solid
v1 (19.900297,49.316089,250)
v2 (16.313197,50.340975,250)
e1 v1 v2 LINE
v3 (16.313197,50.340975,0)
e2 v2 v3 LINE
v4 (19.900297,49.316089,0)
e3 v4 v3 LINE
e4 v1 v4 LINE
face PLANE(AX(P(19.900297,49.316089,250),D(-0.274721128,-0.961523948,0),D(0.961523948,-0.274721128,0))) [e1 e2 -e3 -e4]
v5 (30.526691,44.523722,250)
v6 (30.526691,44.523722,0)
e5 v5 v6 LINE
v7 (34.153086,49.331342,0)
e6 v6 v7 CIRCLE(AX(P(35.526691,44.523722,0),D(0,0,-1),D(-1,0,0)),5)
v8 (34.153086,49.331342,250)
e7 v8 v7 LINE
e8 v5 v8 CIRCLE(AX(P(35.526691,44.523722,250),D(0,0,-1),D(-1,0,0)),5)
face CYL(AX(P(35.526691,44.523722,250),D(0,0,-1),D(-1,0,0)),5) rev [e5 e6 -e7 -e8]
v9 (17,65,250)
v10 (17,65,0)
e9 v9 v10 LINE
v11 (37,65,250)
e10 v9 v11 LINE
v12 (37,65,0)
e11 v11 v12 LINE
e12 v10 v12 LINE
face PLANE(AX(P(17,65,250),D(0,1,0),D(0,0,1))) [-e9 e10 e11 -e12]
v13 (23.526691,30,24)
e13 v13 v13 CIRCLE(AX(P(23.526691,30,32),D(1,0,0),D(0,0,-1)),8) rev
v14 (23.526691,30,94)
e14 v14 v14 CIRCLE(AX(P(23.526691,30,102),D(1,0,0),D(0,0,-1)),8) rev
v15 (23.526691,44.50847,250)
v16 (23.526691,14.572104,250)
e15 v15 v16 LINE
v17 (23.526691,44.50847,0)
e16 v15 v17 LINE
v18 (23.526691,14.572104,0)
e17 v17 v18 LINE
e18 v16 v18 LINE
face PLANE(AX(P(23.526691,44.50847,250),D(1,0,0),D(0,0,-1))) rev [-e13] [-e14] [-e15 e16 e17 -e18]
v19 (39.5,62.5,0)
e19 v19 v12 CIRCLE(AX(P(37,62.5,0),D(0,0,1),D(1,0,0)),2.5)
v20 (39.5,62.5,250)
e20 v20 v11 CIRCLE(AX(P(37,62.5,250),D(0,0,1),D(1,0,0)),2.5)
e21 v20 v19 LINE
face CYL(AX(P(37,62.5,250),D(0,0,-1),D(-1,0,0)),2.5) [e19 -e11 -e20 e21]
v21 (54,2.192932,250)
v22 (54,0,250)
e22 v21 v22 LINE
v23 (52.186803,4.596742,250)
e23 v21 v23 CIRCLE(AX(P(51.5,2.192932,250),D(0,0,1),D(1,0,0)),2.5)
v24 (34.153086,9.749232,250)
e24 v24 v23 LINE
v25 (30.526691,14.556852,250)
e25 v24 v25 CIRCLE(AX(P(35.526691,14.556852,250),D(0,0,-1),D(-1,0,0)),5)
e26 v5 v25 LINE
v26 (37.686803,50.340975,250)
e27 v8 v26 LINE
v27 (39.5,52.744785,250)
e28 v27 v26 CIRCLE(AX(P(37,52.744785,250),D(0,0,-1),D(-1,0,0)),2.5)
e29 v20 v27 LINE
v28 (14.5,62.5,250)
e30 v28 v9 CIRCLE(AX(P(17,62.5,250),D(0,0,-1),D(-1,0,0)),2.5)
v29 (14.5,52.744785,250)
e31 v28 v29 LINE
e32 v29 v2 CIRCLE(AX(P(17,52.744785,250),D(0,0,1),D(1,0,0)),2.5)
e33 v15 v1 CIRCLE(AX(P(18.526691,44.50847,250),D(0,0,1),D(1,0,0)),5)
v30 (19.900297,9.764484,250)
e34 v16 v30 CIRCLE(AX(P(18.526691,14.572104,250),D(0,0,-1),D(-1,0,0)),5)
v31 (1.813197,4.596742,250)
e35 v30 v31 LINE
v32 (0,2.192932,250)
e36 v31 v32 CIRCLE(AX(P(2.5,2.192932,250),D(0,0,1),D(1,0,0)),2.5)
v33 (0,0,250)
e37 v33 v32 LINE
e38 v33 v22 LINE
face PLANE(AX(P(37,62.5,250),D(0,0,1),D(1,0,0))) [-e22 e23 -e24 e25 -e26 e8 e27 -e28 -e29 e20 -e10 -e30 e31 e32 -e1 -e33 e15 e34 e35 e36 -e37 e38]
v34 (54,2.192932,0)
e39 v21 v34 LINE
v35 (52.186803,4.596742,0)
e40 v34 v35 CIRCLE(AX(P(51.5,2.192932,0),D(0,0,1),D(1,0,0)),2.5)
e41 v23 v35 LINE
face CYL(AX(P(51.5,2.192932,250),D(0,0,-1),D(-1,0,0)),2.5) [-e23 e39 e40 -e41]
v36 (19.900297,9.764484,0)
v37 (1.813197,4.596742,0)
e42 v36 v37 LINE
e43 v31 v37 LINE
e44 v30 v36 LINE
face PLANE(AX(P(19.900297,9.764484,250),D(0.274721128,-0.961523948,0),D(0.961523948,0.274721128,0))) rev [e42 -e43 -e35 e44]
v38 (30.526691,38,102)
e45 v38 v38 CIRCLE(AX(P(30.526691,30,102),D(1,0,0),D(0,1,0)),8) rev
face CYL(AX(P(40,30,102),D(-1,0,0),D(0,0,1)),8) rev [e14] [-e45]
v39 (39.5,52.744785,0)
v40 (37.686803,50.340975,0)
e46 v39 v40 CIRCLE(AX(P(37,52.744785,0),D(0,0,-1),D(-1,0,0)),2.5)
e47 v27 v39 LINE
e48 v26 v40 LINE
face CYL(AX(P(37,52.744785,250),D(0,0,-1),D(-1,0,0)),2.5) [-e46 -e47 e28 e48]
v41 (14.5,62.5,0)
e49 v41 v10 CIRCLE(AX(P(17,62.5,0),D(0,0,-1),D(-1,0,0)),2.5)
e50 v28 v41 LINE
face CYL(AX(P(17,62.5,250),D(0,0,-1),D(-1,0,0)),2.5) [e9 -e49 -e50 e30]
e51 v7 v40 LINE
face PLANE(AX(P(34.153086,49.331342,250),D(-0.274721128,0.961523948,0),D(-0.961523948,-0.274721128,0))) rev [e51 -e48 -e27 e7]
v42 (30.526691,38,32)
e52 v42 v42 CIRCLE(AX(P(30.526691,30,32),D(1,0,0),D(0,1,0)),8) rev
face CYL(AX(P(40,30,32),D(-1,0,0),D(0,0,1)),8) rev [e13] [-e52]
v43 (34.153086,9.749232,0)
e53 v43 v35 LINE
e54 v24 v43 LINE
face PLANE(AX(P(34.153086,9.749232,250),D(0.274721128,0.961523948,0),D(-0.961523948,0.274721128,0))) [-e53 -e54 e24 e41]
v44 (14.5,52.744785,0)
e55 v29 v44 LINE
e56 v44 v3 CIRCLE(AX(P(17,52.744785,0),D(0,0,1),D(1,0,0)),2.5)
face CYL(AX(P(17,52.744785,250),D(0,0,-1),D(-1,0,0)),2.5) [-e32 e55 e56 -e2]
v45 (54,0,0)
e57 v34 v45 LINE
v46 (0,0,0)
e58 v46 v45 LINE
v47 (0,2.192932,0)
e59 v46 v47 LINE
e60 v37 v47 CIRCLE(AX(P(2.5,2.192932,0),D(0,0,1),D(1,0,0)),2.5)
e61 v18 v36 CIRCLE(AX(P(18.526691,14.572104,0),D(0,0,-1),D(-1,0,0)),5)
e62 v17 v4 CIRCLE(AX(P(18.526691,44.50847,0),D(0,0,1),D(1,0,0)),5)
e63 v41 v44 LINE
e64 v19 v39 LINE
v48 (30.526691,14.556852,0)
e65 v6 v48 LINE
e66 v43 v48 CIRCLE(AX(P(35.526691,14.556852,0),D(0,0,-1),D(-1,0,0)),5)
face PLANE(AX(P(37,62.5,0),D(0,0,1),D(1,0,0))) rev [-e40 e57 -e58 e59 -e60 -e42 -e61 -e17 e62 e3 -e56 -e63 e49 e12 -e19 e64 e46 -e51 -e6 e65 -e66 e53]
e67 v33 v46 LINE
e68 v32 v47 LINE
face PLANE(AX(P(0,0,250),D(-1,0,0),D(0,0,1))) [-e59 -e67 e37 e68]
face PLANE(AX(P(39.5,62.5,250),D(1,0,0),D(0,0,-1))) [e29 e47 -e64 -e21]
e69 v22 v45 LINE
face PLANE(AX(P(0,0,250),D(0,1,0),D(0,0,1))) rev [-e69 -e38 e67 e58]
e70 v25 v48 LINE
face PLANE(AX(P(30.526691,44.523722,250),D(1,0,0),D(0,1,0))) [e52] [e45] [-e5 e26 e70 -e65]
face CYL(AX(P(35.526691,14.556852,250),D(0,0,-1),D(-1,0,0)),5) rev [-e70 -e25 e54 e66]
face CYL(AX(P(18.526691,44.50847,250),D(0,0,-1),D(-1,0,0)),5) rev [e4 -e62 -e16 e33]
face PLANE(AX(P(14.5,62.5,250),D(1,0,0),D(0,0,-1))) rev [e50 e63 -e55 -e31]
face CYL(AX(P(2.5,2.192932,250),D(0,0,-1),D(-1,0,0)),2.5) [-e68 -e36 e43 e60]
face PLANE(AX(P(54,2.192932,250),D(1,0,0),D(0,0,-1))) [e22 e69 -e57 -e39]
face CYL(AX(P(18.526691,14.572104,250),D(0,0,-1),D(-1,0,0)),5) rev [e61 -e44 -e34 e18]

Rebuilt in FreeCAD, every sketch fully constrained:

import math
import FreeCAD as App
import Part
import Sketcher

doc = App.newDocument("Part")
params = doc.addObject("Spreadsheet::Sheet", "Params")
for row, (alias, value) in enumerate([
    ("sketch1_radius", "5 mm"),
    ("sketch1_radius2", "2.5 mm"),
    ("sketch1_width", "54 mm"),
    ("sketch1_width2", "20 mm"),
    ("pad1_length", "250 mm"),
    ("sketch2_diameter", "16 mm"),
    ("pocket1_length", "40 mm"),
], start=1):
    params.set(f"A{row}", alias)
    params.set(f"B{row}", "=" + value)
    params.setAlias(f"B{row}", alias)

body = doc.addObject("PartDesign::Body", "Body")

# Sketch on XY plane
sketch1 = body.newObject("Sketcher::SketchObject", "Sketch")
sketch1.AttachmentSupport = (doc.getObject("XY_Plane"), [""])
sketch1.MapMode = "FlatFace"
sketch1.addGeometry(Part.LineSegment(App.Vector(0, 0, 0), App.Vector(54, 0, 0)), False)
sketch1.addGeometry(Part.LineSegment(App.Vector(54, 0, 0), App.Vector(54, 2.2, 0)), False)
sketch1.addGeometry(Part.ArcOfCircle(Part.Circle(App.Vector(51.5, 2.2, 0), App.Vector(0, 0, 1), 2.5), math.radians(0), math.radians(74)), False)
sketch1.addGeometry(Part.LineSegment(App.Vector(52.2, 4.6, 0), App.Vector(34.2, 9.7, 0)), False)
sketch1.addGeometry(Part.ArcOfCircle(Part.Circle(App.Vector(35.5, 14.6, 0), App.Vector(0, 0, 1), 5), math.radians(180), math.radians(254)), False)
sketch1.addGeometry(Part.LineSegment(App.Vector(30.5, 14.6, 0), App.Vector(30.5, 44.5, 0)), False)
sketch1.addGeometry(Part.ArcOfCircle(Part.Circle(App.Vector(35.5, 44.5, 0), App.Vector(0, 0, 1), 5), math.radians(106), math.radians(180)), False)
sketch1.addGeometry(Part.LineSegment(App.Vector(34.2, 49.3, 0), App.Vector(37.7, 50.3, 0)), False)
sketch1.addGeometry(Part.ArcOfCircle(Part.Circle(App.Vector(37, 52.7, 0), App.Vector(0, 0, 1), 2.5), math.radians(-74), math.radians(0)), False)
sketch1.addGeometry(Part.LineSegment(App.Vector(39.5, 52.7, 0), App.Vector(39.5, 62.5, 0)), False)
sketch1.addGeometry(Part.ArcOfCircle(Part.Circle(App.Vector(37, 62.5, 0), App.Vector(0, 0, 1), 2.5), math.radians(0), math.radians(90)), False)
sketch1.addGeometry(Part.LineSegment(App.Vector(37, 65, 0), App.Vector(17, 65, 0)), False)
sketch1.addGeometry(Part.ArcOfCircle(Part.Circle(App.Vector(17, 62.5, 0), App.Vector(0, 0, 1), 2.5), math.radians(90), math.radians(180)), False)
sketch1.addGeometry(Part.LineSegment(App.Vector(14.5, 62.5, 0), App.Vector(14.5, 52.7, 0)), False)
sketch1.addGeometry(Part.ArcOfCircle(Part.Circle(App.Vector(17, 52.7, 0), App.Vector(0, 0, 1), 2.5), math.radians(-180), math.radians(-106)), False)
sketch1.addGeometry(Part.LineSegment(App.Vector(16.3, 50.3, 0), App.Vector(19.9, 49.3, 0)), False)
sketch1.addGeometry(Part.ArcOfCircle(Part.Circle(App.Vector(18.5, 44.5, 0), App.Vector(0, 0, 1), 5), math.radians(0), math.radians(74)), False)
sketch1.addGeometry(Part.LineSegment(App.Vector(23.5, 44.5, 0), App.Vector(23.5, 14.6, 0)), False)
sketch1.addGeometry(Part.ArcOfCircle(Part.Circle(App.Vector(18.5, 14.6, 0), App.Vector(0, 0, 1), 5), math.radians(-74), math.radians(0)), False)
sketch1.addGeometry(Part.LineSegment(App.Vector(19.9, 9.8, 0), App.Vector(1.8, 4.6, 0)), False)
sketch1.addGeometry(Part.ArcOfCircle(Part.Circle(App.Vector(2.5, 2.2, 0), App.Vector(0, 0, 1), 2.5), math.radians(106), math.radians(180)), False)
sketch1.addGeometry(Part.LineSegment(App.Vector(0, 2.2, 0), App.Vector(0, 0, 0)), False)
sketch1.addConstraint(Sketcher.Constraint("Coincident", 0, 2, 1, 1))
sketch1.addConstraint(Sketcher.Constraint("Tangent", 1, 2, 2, 1))
sketch1.addConstraint(Sketcher.Constraint("Tangent", 2, 2, 3, 1))
sketch1.addConstraint(Sketcher.Constraint("Tangent", 3, 2, 4, 2))
sketch1.addConstraint(Sketcher.Constraint("Tangent", 4, 1, 5, 1))
sketch1.addConstraint(Sketcher.Constraint("Tangent", 5, 2, 6, 2))
sketch1.addConstraint(Sketcher.Constraint("Tangent", 6, 1, 7, 1))
sketch1.addConstraint(Sketcher.Constraint("Tangent", 7, 2, 8, 1))
sketch1.addConstraint(Sketcher.Constraint("Tangent", 8, 2, 9, 1))
sketch1.addConstraint(Sketcher.Constraint("Tangent", 9, 2, 10, 1))
sketch1.addConstraint(Sketcher.Constraint("Tangent", 10, 2, 11, 1))
sketch1.addConstraint(Sketcher.Constraint("Tangent", 11, 2, 12, 1))
sketch1.addConstraint(Sketcher.Constraint("Tangent", 12, 2, 13, 1))
sketch1.addConstraint(Sketcher.Constraint("Tangent", 13, 2, 14, 1))
sketch1.addConstraint(Sketcher.Constraint("Tangent", 14, 2, 15, 1))
sketch1.addConstraint(Sketcher.Constraint("Tangent", 15, 2, 16, 2))
sketch1.addConstraint(Sketcher.Constraint("Tangent", 16, 1, 17, 1))
sketch1.addConstraint(Sketcher.Constraint("Tangent", 17, 2, 18, 2))
sketch1.addConstraint(Sketcher.Constraint("Tangent", 18, 1, 19, 1))
sketch1.addConstraint(Sketcher.Constraint("Tangent", 19, 2, 20, 1))
sketch1.addConstraint(Sketcher.Constraint("Tangent", 20, 2, 21, 1))
sketch1.addConstraint(Sketcher.Constraint("Coincident", 21, 2, 0, 1))
sketch1.addConstraint(Sketcher.Constraint("Horizontal", 0))
sketch1.addConstraint(Sketcher.Constraint("Vertical", 1))
sketch1.addConstraint(Sketcher.Constraint("Vertical", 5))
sketch1.addConstraint(Sketcher.Constraint("Vertical", 9))
sketch1.addConstraint(Sketcher.Constraint("Horizontal", 11))
sketch1.addConstraint(Sketcher.Constraint("Vertical", 13))
sketch1.addConstraint(Sketcher.Constraint("Vertical", 17))
sketch1.addConstraint(Sketcher.Constraint("Vertical", 21))
sketch1.addConstraint(Sketcher.Constraint("Coincident", 21, 2, -1, 1))
sketch1.addConstraint(Sketcher.Constraint("Equal", 4, 6))
sketch1.addConstraint(Sketcher.Constraint("Equal", 2, 8))
sketch1.addConstraint(Sketcher.Constraint("Equal", 8, 10))
sketch1.addConstraint(Sketcher.Constraint("Equal", 10, 12))
sketch1.addConstraint(Sketcher.Constraint("Equal", 12, 14))
sketch1.addConstraint(Sketcher.Constraint("Equal", 6, 16))
sketch1.addConstraint(Sketcher.Constraint("Equal", 16, 18))
sketch1.addConstraint(Sketcher.Constraint("Equal", 14, 20))
sketch1.addConstraint(Sketcher.Constraint("Parallel", 3, 15))
sketch1.addConstraint(Sketcher.Constraint("Parallel", 7, 19))
sketch1.addConstraint(Sketcher.Constraint("Horizontal", 8, 3, 14, 3))
sketch1.addConstraint(Sketcher.Constraint("Horizontal", 2, 3, 20, 3))
sketch1.addConstraint(Sketcher.Constraint("Horizontal", 7, 2, 14, 2))
sketch1.addConstraint(Sketcher.Constraint("Radius", 4, 5.0))
sketch1.addConstraint(Sketcher.Constraint("Radius", 2, 2.5))
sketch1.addConstraint(Sketcher.Constraint("DistanceX", 0, 1, 0, 2, 54.0))
sketch1.addConstraint(Sketcher.Constraint("DistanceX", 11, 2, 11, 1, 20.0))
sketch1.addConstraint(Sketcher.Constraint("DistanceX", -1, 1, 8, 3, 37.0))
sketch1.addConstraint(Sketcher.Constraint("DistanceY", -1, 1, 10, 2, 65.0))
sketch1.addConstraint(Sketcher.Constraint("DistanceX", 16, 3, 6, 3, 17.0))
sketch1.addConstraint(Sketcher.Constraint("DistanceY", 1, 1, 1, 2, 2.192932))
sketch1.addConstraint(Sketcher.Constraint("DistanceY", 5, 1, 5, 2, 29.96687))
sketch1.addConstraint(Sketcher.Constraint("DistanceY", 2, 3, 3, 2, 7.5563))
sketch1.addConstraint(Sketcher.Constraint("DistanceX", 14, 2, 15, 2, 3.5871))
sketch1.setExpression("Constraints[44]", "Params.sketch1_radius")
sketch1.setExpression("Constraints[45]", "Params.sketch1_radius2")
sketch1.setExpression("Constraints[46]", "Params.sketch1_width")
sketch1.setExpression("Constraints[47]", "Params.sketch1_width2")
pad1 = body.newObject("PartDesign::Pad", "Pad")
pad1.Profile = sketch1
pad1.setExpression("Length", "Params.pad1_length")

# Sketch on YZ plane
sketch2 = body.newObject("Sketcher::SketchObject", "Sketch001")
sketch2.AttachmentSupport = (doc.getObject("YZ_Plane"), [""])
sketch2.MapMode = "FlatFace"
sketch2.addGeometry(Part.Circle(App.Vector(30, 32, 0), App.Vector(0, 0, 1), 8), False)
sketch2.addGeometry(Part.Circle(App.Vector(30, 102, 0), App.Vector(0, 0, 1), 8), False)
sketch2.addConstraint(Sketcher.Constraint("Equal", 0, 1))
sketch2.addConstraint(Sketcher.Constraint("Vertical", 0, 3, 1, 3))
sketch2.addConstraint(Sketcher.Constraint("Diameter", 0, 16.0))
sketch2.addConstraint(Sketcher.Constraint("DistanceX", -1, 1, 0, 3, 30.0))
sketch2.addConstraint(Sketcher.Constraint("DistanceY", -1, 1, 0, 3, 32.0))
sketch2.addConstraint(Sketcher.Constraint("DistanceY", -1, 1, 1, 3, 102.0))
sketch2.setExpression("Constraints[2]", "Params.sketch2_diameter")
pocket1 = body.newObject("PartDesign::Pocket", "Pocket")
pocket1.Profile = sketch2
pocket1.setExpression("Length", "Params.pocket1_length")
pocket1.Reversed = True

doc.recompute()
